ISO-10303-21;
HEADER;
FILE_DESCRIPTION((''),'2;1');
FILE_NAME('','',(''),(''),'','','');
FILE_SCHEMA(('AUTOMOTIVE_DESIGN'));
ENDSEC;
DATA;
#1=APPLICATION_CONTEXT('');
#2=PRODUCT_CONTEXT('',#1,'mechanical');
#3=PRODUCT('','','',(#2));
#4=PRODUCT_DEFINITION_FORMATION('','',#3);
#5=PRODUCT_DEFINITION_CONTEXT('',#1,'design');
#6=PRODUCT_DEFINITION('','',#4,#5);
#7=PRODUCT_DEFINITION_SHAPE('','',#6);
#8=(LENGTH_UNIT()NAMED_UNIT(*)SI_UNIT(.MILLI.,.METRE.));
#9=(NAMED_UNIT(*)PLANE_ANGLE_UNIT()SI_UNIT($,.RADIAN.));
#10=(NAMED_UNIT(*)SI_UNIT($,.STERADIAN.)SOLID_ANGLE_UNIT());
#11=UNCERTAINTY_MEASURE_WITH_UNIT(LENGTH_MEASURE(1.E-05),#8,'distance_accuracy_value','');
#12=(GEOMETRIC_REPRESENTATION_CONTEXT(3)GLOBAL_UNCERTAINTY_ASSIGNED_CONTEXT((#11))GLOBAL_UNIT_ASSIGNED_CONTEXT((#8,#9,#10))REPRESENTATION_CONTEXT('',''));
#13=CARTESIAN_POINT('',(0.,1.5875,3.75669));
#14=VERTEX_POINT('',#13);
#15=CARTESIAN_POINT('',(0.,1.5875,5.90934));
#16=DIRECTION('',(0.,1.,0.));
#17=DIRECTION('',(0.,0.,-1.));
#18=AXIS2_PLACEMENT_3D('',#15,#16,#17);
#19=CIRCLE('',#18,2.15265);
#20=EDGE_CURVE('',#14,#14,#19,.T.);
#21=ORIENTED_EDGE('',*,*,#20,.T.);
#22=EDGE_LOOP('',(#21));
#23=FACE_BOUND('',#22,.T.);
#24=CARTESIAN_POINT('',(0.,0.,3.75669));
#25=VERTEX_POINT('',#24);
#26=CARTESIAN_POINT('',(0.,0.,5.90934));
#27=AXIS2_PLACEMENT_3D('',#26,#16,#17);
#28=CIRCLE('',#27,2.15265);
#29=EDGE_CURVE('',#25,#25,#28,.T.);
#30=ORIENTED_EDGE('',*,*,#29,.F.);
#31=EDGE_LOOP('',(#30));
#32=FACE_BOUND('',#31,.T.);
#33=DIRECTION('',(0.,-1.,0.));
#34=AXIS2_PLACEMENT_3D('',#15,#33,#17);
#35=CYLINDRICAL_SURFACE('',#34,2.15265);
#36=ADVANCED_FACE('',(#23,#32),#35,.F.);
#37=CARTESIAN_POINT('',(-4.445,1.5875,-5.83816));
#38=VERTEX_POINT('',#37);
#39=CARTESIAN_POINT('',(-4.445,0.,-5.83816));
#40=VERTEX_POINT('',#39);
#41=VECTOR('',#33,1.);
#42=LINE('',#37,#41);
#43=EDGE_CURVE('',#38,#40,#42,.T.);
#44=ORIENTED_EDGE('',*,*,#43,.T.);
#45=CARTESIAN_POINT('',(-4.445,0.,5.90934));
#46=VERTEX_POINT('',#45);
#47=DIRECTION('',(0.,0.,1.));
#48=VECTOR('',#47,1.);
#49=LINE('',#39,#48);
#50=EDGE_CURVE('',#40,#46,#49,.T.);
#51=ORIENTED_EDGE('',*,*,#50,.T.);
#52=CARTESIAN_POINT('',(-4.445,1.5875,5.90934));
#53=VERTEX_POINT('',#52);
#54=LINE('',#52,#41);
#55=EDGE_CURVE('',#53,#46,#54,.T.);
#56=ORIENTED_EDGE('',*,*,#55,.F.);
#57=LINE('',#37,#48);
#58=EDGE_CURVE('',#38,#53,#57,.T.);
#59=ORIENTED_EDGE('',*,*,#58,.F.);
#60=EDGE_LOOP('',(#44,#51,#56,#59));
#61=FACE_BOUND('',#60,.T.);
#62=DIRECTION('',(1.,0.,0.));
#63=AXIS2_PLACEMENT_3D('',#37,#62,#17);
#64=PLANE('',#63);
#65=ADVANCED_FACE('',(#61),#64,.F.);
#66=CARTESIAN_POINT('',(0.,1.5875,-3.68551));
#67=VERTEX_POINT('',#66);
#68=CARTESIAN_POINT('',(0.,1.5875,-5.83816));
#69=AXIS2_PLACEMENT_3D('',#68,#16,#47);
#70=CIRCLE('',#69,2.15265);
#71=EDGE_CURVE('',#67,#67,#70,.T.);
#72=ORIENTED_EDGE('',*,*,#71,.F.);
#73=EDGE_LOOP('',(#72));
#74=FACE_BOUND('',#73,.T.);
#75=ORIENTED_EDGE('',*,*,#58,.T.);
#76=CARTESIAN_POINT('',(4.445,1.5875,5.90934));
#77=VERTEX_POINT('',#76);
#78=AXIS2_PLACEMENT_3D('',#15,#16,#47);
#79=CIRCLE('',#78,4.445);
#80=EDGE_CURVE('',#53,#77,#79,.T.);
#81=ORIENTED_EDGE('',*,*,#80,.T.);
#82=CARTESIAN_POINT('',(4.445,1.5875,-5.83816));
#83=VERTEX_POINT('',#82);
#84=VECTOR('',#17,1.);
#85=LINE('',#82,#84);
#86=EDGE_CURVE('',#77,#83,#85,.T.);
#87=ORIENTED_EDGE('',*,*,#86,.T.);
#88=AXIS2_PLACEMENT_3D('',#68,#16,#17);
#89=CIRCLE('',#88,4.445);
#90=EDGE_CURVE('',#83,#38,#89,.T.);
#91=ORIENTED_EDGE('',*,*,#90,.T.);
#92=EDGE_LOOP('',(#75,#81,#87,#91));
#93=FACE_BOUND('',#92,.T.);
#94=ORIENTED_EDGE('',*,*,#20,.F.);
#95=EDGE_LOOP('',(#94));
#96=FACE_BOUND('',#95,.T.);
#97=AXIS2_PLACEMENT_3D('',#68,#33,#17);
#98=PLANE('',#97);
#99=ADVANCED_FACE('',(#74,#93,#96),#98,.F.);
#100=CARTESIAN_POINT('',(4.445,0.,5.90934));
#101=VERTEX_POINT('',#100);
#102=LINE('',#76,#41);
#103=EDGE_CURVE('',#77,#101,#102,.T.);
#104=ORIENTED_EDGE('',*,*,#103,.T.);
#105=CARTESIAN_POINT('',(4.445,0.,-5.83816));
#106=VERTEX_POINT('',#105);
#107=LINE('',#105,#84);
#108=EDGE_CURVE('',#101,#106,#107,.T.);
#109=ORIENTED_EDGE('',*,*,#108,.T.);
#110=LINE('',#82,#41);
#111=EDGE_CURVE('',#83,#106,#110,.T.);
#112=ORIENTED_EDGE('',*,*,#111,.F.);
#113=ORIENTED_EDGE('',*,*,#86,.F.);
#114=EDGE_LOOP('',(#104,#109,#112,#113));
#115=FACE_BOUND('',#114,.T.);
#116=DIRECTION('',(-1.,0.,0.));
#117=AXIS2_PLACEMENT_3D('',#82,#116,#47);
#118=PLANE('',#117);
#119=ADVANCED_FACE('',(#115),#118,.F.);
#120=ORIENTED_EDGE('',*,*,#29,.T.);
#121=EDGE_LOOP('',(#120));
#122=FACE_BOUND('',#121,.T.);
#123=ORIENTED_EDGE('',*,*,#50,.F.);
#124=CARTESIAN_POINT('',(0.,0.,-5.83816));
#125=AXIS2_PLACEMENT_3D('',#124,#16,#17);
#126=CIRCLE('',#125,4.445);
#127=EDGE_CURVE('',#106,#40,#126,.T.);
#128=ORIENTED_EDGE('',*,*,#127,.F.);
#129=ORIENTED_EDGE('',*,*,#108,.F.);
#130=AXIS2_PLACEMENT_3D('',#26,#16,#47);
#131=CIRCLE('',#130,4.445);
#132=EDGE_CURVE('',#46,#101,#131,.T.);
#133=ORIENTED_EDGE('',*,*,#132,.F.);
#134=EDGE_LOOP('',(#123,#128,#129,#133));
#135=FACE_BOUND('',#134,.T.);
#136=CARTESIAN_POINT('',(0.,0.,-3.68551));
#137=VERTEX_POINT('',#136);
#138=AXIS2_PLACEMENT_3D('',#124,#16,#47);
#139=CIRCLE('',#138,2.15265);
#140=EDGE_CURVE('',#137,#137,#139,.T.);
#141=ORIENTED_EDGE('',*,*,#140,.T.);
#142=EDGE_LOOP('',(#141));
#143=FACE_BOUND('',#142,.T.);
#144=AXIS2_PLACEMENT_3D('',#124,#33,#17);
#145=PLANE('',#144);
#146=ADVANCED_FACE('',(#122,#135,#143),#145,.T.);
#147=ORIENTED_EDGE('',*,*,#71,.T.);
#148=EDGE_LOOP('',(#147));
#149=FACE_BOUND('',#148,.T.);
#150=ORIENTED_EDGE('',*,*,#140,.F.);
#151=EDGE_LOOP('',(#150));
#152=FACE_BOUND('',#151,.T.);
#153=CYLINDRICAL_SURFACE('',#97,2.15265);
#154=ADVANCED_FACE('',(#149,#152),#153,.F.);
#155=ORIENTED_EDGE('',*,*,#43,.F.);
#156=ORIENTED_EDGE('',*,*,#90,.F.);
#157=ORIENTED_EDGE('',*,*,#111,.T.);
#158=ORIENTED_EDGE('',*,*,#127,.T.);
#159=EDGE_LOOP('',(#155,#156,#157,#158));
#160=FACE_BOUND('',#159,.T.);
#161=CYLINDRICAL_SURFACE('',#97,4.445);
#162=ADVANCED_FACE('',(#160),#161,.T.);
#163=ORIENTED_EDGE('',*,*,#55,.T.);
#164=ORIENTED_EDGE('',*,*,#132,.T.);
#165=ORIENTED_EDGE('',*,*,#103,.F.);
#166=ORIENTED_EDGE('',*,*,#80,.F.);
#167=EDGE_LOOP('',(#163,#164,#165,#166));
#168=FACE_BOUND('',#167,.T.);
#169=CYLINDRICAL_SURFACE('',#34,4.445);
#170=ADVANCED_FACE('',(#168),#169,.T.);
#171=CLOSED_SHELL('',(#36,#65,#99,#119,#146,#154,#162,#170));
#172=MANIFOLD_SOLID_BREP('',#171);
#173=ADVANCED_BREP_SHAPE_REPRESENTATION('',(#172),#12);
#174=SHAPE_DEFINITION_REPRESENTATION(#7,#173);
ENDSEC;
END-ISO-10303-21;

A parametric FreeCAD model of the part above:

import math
import FreeCAD as App
import Part
import Sketcher
Q = App.Units.Quantity

doc = App.newDocument("Part")
body = doc.addObject("PartDesign::Body", "Body")

sketch1 = body.newObject("Sketcher::SketchObject", "Sketch")
sketch1.AttachmentSupport = (doc.getObject("XZ_Plane"), [""])
sketch1.MapMode = "FlatFace"
sketch1.addGeometry([
    Part.LineSegment(App.Vector(-4.4, -5.8, 0), App.Vector(-4.4, 5.9, 0)),
    Part.ArcOfCircle(Part.Circle(App.Vector(0, 5.9, 0), App.Vector(0, 0, 1), 4.4), math.radians(0), math.radians(180)),
    Part.LineSegment(App.Vector(4.4, 5.9, 0), App.Vector(4.4, -5.8, 0)),
    Part.ArcOfCircle(Part.Circle(App.Vector(0, -5.8, 0), App.Vector(0, 0, 1), 4.4), math.radians(180), math.radians(360)),
    Part.Circle(App.Vector(0, 5.9, 0), App.Vector(0, 0, 1), 2.2),
    Part.Circle(App.Vector(0, -5.8, 0), App.Vector(0, 0, 1), 2.2),
], False)
sketch1.addConstraint([
    Sketcher.Constraint("Tangent", 0, 2, 1, 2),
    Sketcher.Constraint("Tangent", 1, 1, 2, 1),
    Sketcher.Constraint("Tangent", 2, 2, 3, 2),
    Sketcher.Constraint("Tangent", 3, 1, 0, 1),
    Sketcher.Constraint("Vertical", 0),
    Sketcher.Constraint("Vertical", 2),
    Sketcher.Constraint("Coincident", 4, 3, 1, 3),
    Sketcher.Constraint("Coincident", 5, 3, 3, 3),
    Sketcher.Constraint("Equal", 4, 5),
    Sketcher.Constraint("PointOnObject", 1, 3, -2),
    Sketcher.Constraint("Radius", 1, Q("0.175 in")),
    Sketcher.Constraint("Diameter", 4, Q("0.1695 in")),
    Sketcher.Constraint("DistanceY", 0, 1, 0, 2, Q("0.4625 in")),
    Sketcher.Constraint("DistanceY", -1, 1, 1, 3, 5.90934),
])
pad1 = body.newObject("PartDesign::Pad", "Pad")
pad1.Profile = sketch1
pad1.Length = Q("0.0625 in")
pad1.Reversed = True

doc.recompute()
